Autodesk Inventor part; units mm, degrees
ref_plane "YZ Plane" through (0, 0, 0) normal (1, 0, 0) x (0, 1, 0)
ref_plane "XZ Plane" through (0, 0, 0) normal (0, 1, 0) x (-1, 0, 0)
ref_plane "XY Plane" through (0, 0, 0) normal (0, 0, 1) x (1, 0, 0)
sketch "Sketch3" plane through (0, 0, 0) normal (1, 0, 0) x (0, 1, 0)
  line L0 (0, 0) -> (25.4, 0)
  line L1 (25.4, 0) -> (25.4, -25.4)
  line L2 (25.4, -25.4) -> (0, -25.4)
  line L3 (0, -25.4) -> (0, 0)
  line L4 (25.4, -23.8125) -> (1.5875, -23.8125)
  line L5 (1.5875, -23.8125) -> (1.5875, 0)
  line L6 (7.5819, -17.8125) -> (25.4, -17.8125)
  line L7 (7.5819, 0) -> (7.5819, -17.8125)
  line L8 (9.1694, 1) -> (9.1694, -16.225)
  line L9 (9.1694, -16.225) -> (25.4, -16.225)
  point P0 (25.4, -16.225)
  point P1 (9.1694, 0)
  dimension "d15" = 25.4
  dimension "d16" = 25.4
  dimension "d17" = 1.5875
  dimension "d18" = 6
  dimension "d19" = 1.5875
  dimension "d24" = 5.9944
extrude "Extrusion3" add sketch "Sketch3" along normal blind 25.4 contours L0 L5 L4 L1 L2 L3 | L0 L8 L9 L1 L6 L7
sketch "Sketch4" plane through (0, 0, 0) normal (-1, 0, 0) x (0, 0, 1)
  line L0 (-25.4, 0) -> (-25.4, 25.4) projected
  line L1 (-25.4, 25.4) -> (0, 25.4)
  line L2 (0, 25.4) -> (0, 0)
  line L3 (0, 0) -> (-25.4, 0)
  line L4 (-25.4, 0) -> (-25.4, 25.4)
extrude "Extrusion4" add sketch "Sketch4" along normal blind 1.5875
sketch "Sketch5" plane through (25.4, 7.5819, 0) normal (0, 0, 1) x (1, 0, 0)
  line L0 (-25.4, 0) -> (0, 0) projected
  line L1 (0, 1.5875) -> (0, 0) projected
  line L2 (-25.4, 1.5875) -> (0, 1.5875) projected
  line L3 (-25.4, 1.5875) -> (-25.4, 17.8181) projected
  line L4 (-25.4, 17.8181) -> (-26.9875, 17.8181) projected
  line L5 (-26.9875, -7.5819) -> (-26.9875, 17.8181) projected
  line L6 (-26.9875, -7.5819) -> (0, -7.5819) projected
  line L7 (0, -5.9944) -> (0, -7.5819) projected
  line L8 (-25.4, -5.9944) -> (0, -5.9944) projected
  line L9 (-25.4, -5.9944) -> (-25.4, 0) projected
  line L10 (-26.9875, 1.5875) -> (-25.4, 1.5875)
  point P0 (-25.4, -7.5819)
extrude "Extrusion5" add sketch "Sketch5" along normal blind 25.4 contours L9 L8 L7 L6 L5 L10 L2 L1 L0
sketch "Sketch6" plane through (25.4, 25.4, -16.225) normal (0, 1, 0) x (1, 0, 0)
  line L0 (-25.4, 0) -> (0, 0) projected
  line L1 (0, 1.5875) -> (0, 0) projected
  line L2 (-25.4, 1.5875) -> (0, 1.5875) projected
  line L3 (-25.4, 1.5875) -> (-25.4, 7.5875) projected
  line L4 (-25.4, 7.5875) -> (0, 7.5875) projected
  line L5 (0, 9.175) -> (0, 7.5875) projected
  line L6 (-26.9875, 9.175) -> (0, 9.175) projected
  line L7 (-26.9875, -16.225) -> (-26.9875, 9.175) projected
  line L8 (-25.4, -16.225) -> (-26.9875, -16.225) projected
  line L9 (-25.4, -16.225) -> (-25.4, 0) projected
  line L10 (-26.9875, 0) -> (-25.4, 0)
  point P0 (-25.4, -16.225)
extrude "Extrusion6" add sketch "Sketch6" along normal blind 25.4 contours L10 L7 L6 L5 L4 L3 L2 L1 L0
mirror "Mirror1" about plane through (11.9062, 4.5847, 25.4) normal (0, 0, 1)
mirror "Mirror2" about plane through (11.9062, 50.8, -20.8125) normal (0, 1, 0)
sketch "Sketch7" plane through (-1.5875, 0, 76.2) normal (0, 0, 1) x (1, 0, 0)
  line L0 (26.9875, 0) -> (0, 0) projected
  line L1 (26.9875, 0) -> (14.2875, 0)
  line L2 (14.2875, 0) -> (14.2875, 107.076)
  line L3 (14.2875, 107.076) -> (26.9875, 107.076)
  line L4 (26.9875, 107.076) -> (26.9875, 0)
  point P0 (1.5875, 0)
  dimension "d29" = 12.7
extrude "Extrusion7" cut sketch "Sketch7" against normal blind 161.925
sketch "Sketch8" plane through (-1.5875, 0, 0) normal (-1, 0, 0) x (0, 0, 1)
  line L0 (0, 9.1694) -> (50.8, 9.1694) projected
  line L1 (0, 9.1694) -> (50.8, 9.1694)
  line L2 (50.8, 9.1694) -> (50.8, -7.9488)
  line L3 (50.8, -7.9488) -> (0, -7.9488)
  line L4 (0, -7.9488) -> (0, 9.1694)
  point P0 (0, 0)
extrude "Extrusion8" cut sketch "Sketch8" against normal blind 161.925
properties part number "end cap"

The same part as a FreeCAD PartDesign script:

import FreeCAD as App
import Part
import Sketcher
from FreeCAD import Vector
Q = App.Units.Quantity


def add_polygon(sketch, points):
    """Adds a closed chain of lines whose ends are joined by coincident constraints."""
    first, n = sketch.GeometryCount, len(points)
    for a, b in zip(points, points[1:] + points[:1]):
        sketch.addGeometry(Part.LineSegment(App.Vector(*a, 0), App.Vector(*b, 0)), False)
    for i in range(n):
        sketch.addConstraint(Sketcher.Constraint("Coincident", first + i, 2, first + (i + 1) % n, 1))

doc = App.newDocument("Part")
body = doc.addObject("PartDesign::Body", "Body")
body.AllowCompound = True

# Sketch on YZ plane
sketch1 = doc.addObject("Sketcher::SketchObject", "Sketch")
body.addObject(sketch1)
sketch1.AttachmentSupport = (doc.YZ_Plane, [""])
sketch1.MapMode = "FlatFace"
add_polygon(sketch1, [(1.6, 0), (0, 0), (0, -25.4), (25.4, -25.4), (25.4, -23.8), (1.6, -23.8)])  # lines 0-5
add_polygon(sketch1, [(9.2, 0), (7.6, 0), (7.6, -17.8), (25.4, -17.8), (25.4, -16.2), (9.2, -16.2)])  # lines 6-11
sketch1.addConstraint(Sketcher.Constraint("Horizontal", 0))
sketch1.addConstraint(Sketcher.Constraint("Vertical", 1))
sketch1.addConstraint(Sketcher.Constraint("Horizontal", 2))
sketch1.addConstraint(Sketcher.Constraint("Vertical", 3))
sketch1.addConstraint(Sketcher.Constraint("Horizontal", 4))
sketch1.addConstraint(Sketcher.Constraint("Vertical", 5))
sketch1.addConstraint(Sketcher.Constraint("Horizontal", 6))
sketch1.addConstraint(Sketcher.Constraint("Vertical", 7))
sketch1.addConstraint(Sketcher.Constraint("Horizontal", 8))
sketch1.addConstraint(Sketcher.Constraint("Vertical", 9))
sketch1.addConstraint(Sketcher.Constraint("Horizontal", 10))
sketch1.addConstraint(Sketcher.Constraint("Vertical", 11))
sketch1.addConstraint(Sketcher.Constraint("Coincident", 0, 2, -1, 1))
sketch1.addConstraint(Sketcher.Constraint("PointOnObject", 6, 2, -1))
sketch1.addConstraint(Sketcher.Constraint("Vertical", 3, 2, 8, 2))
sketch1.addConstraint(Sketcher.Constraint("Equal", 0, 6))
sketch1.addConstraint(Sketcher.Constraint("Equal", 2, 1))
sketch1.addConstraint(Sketcher.Constraint("Equal", 6, 3))
sketch1.addConstraint(Sketcher.Constraint("Equal", 3, 9))
sketch1.addConstraint(Sketcher.Constraint("DistanceX", 2, 1, 2, 2, Q("1 in")))
sketch1.addConstraint(Sketcher.Constraint("DistanceX", 0, 2, 0, 1, Q("0.0625 in")))
sketch1.addConstraint(Sketcher.Constraint("DistanceX", 5, 2, 6, 2, Q("0.236 in")))
sketch1.addConstraint(Sketcher.Constraint("DistanceY", 4, 2, 7, 2, 6.0))
pad1 = doc.addObject("PartDesign::Pad", "Pad")
body.addObject(pad1)
pad1.Profile = sketch1
pad1.Length = Q("1 in")

# Sketch on YZ plane
sketch2 = doc.addObject("Sketcher::SketchObject", "Sketch001")
body.addObject(sketch2)
sketch2.AttachmentSupport = (doc.YZ_Plane, [""])
sketch2.MapMode = "FlatFace"
add_polygon(sketch2, [(25, -25), (0, -25), (0, 0), (25, 0)])  # lines 0-3
sketch2.addConstraint(Sketcher.Constraint("Horizontal", 0))
sketch2.addConstraint(Sketcher.Constraint("Vertical", 1))
sketch2.addConstraint(Sketcher.Constraint("Horizontal", 2))
sketch2.addConstraint(Sketcher.Constraint("Vertical", 3))
sketch2.addConstraint(Sketcher.Constraint("Coincident", 1, 2, -1, 1))
sketch2.addConstraint(Sketcher.Constraint("Equal", 2, 1))
sketch2.addConstraint(Sketcher.Constraint("DistanceX", 0, 2, 0, 1, Q("1 in")))
pad2 = doc.addObject("PartDesign::Pad", "Pad001")
body.addObject(pad2)
pad2.Profile = sketch2
pad2.Length = Q("0.0625 in")
pad2.Reversed = True

# Sketch on XY plane
sketch3 = doc.addObject("Sketcher::SketchObject", "Sketch002")
body.addObject(sketch3)
sketch3.AttachmentSupport = (doc.XY_Plane, [""])
sketch3.MapMode = "FlatFace"
add_polygon(sketch3, [(0, 1.6), (0, 7.6), (25.4, 7.6), (25.4, 9.2), (-1.6, 9.2), (-1.6, 0), (25.4, 0), (25.4, 1.6)])  # lines 0-7
sketch3.addConstraint(Sketcher.Constraint("Vertical", 0))
sketch3.addConstraint(Sketcher.Constraint("Horizontal", 1))
sketch3.addConstraint(Sketcher.Constraint("Vertical", 2))
sketch3.addConstraint(Sketcher.Constraint("Horizontal", 3))
sketch3.addConstraint(Sketcher.Constraint("Vertical", 4))
sketch3.addConstraint(Sketcher.Constraint("Horizontal", 5))
sketch3.addConstraint(Sketcher.Constraint("Vertical", 6))
sketch3.addConstraint(Sketcher.Constraint("Horizontal", 7))
sketch3.addConstraint(Sketcher.Constraint("PointOnObject", 0, 2, -2))
sketch3.addConstraint(Sketcher.Constraint("PointOnObject", 4, 2, -1))
sketch3.addConstraint(Sketcher.Constraint("Vertical", 2, 2, 5, 2))
sketch3.addConstraint(Sketcher.Constraint("Equal", 2, 6))
sketch3.addConstraint(Sketcher.Constraint("DistanceX", 1, 1, 1, 2, Q("1 in")))
sketch3.addConstraint(Sketcher.Constraint("DistanceX", 3, 2, 3, 1, Q("1.0625 in")))
sketch3.addConstraint(Sketcher.Constraint("DistanceY", 0, 1, 0, 2, Q("0.236 in")))
sketch3.addConstraint(Sketcher.Constraint("DistanceY", 2, 1, 2, 2, Q("0.0625 in")))
pad3 = doc.addObject("PartDesign::Pad", "Pad002")
body.addObject(pad3)
pad3.Profile = sketch3
pad3.Length = Q("1 in")

# Sketch on XZ plane
sketch4 = doc.addObject("Sketcher::SketchObject", "Sketch003")
body.addObject(sketch4)
sketch4.AttachmentSupport = (doc.XZ_Plane, [""])
sketch4.MapMode = "FlatFace"
sketch4.AttachmentOffset = App.Placement(Vector(0, 0, -1 * 25.4), App.Rotation())
add_polygon(sketch4, [(-1.6, -16.2), (25.4, -16.2), (25.4, -17.8), (0, -17.8), (0, -23.8), (25.4, -23.8), (25.4, -25.4), (-1.6, -25.4)])  # lines 0-7
sketch4.addConstraint(Sketcher.Constraint("Horizontal", 0))
sketch4.addConstraint(Sketcher.Constraint("Vertical", 1))
sketch4.addConstraint(Sketcher.Constraint("Horizontal", 2))
sketch4.addConstraint(Sketcher.Constraint("Vertical", 3))
sketch4.addConstraint(Sketcher.Constraint("Horizontal", 4))
sketch4.addConstraint(Sketcher.Constraint("Vertical", 5))
sketch4.addConstraint(Sketcher.Constraint("Horizontal", 6))
sketch4.addConstraint(Sketcher.Constraint("Vertical", 7))
sketch4.addConstraint(Sketcher.Constraint("PointOnObject", 2, 2, -2))
sketch4.addConstraint(Sketcher.Constraint("Vertical", 1, 2, 4, 2))
sketch4.addConstraint(Sketcher.Constraint("Equal", 1, 5))
sketch4.addConstraint(Sketcher.Constraint("DistanceX", 2, 2, 2, 1, Q("1 in")))
sketch4.addConstraint(Sketcher.Constraint("DistanceY", 5, 2, -1, 1, Q("1 in")))
sketch4.addConstraint(Sketcher.Constraint("DistanceX", 0, 1, 0, 2, Q("1.0625 in")))
sketch4.addConstraint(Sketcher.Constraint("DistanceY", 1, 2, 1, 1, Q("0.0625 in")))
sketch4.addConstraint(Sketcher.Constraint("DistanceY", 3, 2, 3, 1, 6.0))
pad4 = doc.addObject("PartDesign::Pad", "Pad003")
body.addObject(pad4)
pad4.Profile = sketch4
pad4.Length = Q("1 in")
pad4.Reversed = True
doc.recompute()

datumplane = doc.addObject("PartDesign::Plane", "DatumPlane")
body.addObject(datumplane)
datumplane.AttachmentSupport = (doc.XY_Plane, [""])
datumplane.MapMode = "FlatFace"
datumplane.AttachmentOffset = App.Placement(Vector(0, 0, 1 * 25.4), App.Rotation())
mirrored = doc.addObject("PartDesign::Mirrored", "Mirrored")
body.addObject(mirrored)
mirrored.TransformMode = "Transform body"
mirrored.MirrorPlane = (datumplane, [""])
body.Tip = mirrored
doc.recompute()

datumplane2 = doc.addObject("PartDesign::Plane", "DatumPlane001")
body.addObject(datumplane2)
datumplane2.AttachmentSupport = (doc.XZ_Plane, [""])
datumplane2.MapMode = "FlatFace"
datumplane2.AttachmentOffset = App.Placement(Vector(0, 0, -2 * 25.4), App.Rotation())
mirrored2 = doc.addObject("PartDesign::Mirrored", "Mirrored001")
body.addObject(mirrored2)
mirrored2.TransformMode = "Transform body"
mirrored2.MirrorPlane = (datumplane2, [""])
body.Tip = mirrored2

# Sketch on XY plane
sketch5 = doc.addObject("Sketcher::SketchObject", "Sketch004")
body.addObject(sketch5)
sketch5.AttachmentSupport = (doc.XY_Plane, [""])
sketch5.MapMode = "FlatFace"
sketch5.AttachmentOffset = App.Placement(Vector(0, 0, 3 * 25.4), App.Rotation())
add_polygon(sketch5, [(13, 0), (25, 0), (25, 107), (13, 107)])  # lines 0-3
sketch5.addConstraint(Sketcher.Constraint("Horizontal", 0))
sketch5.addConstraint(Sketcher.Constraint("Vertical", 1))
sketch5.addConstraint(Sketcher.Constraint("Horizontal", 2))
sketch5.addConstraint(Sketcher.Constraint("Vertical", 3))
sketch5.addConstraint(Sketcher.Constraint("PointOnObject", 0, 2, -1))
sketch5.addConstraint(Sketcher.Constraint("DistanceX", 0, 1, 0, 2, Q("0.5 in")))
sketch5.addConstraint(Sketcher.Constraint("DistanceX", -1, 1, 2, 2, Q("0.5 in")))
sketch5.addConstraint(Sketcher.Constraint("DistanceY", 1, 1, 1, 2, Q("4.2156 in")))
pocket1 = doc.addObject("PartDesign::Pocket", "Pocket")
body.addObject(pocket1)
pocket1.Profile = sketch5
pocket1.Length = Q("6.375 in")

# Sketch on YZ plane
sketch6 = doc.addObject("Sketcher::SketchObject", "Sketch005")
body.addObject(sketch6)
sketch6.AttachmentSupport = (doc.YZ_Plane, [""])
sketch6.MapMode = "FlatFace"
sketch6.AttachmentOffset = App.Placement(Vector(0, 0, -0.0625 * 25.4), App.Rotation())
add_polygon(sketch6, [(9, 51), (9, 0), (-8, 0), (-8, 51)])  # lines 0-3
sketch6.addConstraint(Sketcher.Constraint("Vertical", 0))
sketch6.addConstraint(Sketcher.Constraint("Horizontal", 1))
sketch6.addConstraint(Sketcher.Constraint("Vertical", 2))
sketch6.addConstraint(Sketcher.Constraint("Horizontal", 3))
sketch6.addConstraint(Sketcher.Constraint("PointOnObject", 0, 2, -1))
sketch6.addConstraint(Sketcher.Constraint("DistanceY", 0, 2, 0, 1, Q("2 in")))
sketch6.addConstraint(Sketcher.Constraint("DistanceX", -1, 1, 0, 2, Q("0.361 in")))
sketch6.addConstraint(Sketcher.Constraint("DistanceX", 1, 2, 1, 1, 17.1182))
pocket2 = doc.addObject("PartDesign::Pocket", "Pocket001")
body.addObject(pocket2)
pocket2.Profile = sketch6
pocket2.Length = Q("6.375 in")
pocket2.Reversed = True

doc.recompute()
